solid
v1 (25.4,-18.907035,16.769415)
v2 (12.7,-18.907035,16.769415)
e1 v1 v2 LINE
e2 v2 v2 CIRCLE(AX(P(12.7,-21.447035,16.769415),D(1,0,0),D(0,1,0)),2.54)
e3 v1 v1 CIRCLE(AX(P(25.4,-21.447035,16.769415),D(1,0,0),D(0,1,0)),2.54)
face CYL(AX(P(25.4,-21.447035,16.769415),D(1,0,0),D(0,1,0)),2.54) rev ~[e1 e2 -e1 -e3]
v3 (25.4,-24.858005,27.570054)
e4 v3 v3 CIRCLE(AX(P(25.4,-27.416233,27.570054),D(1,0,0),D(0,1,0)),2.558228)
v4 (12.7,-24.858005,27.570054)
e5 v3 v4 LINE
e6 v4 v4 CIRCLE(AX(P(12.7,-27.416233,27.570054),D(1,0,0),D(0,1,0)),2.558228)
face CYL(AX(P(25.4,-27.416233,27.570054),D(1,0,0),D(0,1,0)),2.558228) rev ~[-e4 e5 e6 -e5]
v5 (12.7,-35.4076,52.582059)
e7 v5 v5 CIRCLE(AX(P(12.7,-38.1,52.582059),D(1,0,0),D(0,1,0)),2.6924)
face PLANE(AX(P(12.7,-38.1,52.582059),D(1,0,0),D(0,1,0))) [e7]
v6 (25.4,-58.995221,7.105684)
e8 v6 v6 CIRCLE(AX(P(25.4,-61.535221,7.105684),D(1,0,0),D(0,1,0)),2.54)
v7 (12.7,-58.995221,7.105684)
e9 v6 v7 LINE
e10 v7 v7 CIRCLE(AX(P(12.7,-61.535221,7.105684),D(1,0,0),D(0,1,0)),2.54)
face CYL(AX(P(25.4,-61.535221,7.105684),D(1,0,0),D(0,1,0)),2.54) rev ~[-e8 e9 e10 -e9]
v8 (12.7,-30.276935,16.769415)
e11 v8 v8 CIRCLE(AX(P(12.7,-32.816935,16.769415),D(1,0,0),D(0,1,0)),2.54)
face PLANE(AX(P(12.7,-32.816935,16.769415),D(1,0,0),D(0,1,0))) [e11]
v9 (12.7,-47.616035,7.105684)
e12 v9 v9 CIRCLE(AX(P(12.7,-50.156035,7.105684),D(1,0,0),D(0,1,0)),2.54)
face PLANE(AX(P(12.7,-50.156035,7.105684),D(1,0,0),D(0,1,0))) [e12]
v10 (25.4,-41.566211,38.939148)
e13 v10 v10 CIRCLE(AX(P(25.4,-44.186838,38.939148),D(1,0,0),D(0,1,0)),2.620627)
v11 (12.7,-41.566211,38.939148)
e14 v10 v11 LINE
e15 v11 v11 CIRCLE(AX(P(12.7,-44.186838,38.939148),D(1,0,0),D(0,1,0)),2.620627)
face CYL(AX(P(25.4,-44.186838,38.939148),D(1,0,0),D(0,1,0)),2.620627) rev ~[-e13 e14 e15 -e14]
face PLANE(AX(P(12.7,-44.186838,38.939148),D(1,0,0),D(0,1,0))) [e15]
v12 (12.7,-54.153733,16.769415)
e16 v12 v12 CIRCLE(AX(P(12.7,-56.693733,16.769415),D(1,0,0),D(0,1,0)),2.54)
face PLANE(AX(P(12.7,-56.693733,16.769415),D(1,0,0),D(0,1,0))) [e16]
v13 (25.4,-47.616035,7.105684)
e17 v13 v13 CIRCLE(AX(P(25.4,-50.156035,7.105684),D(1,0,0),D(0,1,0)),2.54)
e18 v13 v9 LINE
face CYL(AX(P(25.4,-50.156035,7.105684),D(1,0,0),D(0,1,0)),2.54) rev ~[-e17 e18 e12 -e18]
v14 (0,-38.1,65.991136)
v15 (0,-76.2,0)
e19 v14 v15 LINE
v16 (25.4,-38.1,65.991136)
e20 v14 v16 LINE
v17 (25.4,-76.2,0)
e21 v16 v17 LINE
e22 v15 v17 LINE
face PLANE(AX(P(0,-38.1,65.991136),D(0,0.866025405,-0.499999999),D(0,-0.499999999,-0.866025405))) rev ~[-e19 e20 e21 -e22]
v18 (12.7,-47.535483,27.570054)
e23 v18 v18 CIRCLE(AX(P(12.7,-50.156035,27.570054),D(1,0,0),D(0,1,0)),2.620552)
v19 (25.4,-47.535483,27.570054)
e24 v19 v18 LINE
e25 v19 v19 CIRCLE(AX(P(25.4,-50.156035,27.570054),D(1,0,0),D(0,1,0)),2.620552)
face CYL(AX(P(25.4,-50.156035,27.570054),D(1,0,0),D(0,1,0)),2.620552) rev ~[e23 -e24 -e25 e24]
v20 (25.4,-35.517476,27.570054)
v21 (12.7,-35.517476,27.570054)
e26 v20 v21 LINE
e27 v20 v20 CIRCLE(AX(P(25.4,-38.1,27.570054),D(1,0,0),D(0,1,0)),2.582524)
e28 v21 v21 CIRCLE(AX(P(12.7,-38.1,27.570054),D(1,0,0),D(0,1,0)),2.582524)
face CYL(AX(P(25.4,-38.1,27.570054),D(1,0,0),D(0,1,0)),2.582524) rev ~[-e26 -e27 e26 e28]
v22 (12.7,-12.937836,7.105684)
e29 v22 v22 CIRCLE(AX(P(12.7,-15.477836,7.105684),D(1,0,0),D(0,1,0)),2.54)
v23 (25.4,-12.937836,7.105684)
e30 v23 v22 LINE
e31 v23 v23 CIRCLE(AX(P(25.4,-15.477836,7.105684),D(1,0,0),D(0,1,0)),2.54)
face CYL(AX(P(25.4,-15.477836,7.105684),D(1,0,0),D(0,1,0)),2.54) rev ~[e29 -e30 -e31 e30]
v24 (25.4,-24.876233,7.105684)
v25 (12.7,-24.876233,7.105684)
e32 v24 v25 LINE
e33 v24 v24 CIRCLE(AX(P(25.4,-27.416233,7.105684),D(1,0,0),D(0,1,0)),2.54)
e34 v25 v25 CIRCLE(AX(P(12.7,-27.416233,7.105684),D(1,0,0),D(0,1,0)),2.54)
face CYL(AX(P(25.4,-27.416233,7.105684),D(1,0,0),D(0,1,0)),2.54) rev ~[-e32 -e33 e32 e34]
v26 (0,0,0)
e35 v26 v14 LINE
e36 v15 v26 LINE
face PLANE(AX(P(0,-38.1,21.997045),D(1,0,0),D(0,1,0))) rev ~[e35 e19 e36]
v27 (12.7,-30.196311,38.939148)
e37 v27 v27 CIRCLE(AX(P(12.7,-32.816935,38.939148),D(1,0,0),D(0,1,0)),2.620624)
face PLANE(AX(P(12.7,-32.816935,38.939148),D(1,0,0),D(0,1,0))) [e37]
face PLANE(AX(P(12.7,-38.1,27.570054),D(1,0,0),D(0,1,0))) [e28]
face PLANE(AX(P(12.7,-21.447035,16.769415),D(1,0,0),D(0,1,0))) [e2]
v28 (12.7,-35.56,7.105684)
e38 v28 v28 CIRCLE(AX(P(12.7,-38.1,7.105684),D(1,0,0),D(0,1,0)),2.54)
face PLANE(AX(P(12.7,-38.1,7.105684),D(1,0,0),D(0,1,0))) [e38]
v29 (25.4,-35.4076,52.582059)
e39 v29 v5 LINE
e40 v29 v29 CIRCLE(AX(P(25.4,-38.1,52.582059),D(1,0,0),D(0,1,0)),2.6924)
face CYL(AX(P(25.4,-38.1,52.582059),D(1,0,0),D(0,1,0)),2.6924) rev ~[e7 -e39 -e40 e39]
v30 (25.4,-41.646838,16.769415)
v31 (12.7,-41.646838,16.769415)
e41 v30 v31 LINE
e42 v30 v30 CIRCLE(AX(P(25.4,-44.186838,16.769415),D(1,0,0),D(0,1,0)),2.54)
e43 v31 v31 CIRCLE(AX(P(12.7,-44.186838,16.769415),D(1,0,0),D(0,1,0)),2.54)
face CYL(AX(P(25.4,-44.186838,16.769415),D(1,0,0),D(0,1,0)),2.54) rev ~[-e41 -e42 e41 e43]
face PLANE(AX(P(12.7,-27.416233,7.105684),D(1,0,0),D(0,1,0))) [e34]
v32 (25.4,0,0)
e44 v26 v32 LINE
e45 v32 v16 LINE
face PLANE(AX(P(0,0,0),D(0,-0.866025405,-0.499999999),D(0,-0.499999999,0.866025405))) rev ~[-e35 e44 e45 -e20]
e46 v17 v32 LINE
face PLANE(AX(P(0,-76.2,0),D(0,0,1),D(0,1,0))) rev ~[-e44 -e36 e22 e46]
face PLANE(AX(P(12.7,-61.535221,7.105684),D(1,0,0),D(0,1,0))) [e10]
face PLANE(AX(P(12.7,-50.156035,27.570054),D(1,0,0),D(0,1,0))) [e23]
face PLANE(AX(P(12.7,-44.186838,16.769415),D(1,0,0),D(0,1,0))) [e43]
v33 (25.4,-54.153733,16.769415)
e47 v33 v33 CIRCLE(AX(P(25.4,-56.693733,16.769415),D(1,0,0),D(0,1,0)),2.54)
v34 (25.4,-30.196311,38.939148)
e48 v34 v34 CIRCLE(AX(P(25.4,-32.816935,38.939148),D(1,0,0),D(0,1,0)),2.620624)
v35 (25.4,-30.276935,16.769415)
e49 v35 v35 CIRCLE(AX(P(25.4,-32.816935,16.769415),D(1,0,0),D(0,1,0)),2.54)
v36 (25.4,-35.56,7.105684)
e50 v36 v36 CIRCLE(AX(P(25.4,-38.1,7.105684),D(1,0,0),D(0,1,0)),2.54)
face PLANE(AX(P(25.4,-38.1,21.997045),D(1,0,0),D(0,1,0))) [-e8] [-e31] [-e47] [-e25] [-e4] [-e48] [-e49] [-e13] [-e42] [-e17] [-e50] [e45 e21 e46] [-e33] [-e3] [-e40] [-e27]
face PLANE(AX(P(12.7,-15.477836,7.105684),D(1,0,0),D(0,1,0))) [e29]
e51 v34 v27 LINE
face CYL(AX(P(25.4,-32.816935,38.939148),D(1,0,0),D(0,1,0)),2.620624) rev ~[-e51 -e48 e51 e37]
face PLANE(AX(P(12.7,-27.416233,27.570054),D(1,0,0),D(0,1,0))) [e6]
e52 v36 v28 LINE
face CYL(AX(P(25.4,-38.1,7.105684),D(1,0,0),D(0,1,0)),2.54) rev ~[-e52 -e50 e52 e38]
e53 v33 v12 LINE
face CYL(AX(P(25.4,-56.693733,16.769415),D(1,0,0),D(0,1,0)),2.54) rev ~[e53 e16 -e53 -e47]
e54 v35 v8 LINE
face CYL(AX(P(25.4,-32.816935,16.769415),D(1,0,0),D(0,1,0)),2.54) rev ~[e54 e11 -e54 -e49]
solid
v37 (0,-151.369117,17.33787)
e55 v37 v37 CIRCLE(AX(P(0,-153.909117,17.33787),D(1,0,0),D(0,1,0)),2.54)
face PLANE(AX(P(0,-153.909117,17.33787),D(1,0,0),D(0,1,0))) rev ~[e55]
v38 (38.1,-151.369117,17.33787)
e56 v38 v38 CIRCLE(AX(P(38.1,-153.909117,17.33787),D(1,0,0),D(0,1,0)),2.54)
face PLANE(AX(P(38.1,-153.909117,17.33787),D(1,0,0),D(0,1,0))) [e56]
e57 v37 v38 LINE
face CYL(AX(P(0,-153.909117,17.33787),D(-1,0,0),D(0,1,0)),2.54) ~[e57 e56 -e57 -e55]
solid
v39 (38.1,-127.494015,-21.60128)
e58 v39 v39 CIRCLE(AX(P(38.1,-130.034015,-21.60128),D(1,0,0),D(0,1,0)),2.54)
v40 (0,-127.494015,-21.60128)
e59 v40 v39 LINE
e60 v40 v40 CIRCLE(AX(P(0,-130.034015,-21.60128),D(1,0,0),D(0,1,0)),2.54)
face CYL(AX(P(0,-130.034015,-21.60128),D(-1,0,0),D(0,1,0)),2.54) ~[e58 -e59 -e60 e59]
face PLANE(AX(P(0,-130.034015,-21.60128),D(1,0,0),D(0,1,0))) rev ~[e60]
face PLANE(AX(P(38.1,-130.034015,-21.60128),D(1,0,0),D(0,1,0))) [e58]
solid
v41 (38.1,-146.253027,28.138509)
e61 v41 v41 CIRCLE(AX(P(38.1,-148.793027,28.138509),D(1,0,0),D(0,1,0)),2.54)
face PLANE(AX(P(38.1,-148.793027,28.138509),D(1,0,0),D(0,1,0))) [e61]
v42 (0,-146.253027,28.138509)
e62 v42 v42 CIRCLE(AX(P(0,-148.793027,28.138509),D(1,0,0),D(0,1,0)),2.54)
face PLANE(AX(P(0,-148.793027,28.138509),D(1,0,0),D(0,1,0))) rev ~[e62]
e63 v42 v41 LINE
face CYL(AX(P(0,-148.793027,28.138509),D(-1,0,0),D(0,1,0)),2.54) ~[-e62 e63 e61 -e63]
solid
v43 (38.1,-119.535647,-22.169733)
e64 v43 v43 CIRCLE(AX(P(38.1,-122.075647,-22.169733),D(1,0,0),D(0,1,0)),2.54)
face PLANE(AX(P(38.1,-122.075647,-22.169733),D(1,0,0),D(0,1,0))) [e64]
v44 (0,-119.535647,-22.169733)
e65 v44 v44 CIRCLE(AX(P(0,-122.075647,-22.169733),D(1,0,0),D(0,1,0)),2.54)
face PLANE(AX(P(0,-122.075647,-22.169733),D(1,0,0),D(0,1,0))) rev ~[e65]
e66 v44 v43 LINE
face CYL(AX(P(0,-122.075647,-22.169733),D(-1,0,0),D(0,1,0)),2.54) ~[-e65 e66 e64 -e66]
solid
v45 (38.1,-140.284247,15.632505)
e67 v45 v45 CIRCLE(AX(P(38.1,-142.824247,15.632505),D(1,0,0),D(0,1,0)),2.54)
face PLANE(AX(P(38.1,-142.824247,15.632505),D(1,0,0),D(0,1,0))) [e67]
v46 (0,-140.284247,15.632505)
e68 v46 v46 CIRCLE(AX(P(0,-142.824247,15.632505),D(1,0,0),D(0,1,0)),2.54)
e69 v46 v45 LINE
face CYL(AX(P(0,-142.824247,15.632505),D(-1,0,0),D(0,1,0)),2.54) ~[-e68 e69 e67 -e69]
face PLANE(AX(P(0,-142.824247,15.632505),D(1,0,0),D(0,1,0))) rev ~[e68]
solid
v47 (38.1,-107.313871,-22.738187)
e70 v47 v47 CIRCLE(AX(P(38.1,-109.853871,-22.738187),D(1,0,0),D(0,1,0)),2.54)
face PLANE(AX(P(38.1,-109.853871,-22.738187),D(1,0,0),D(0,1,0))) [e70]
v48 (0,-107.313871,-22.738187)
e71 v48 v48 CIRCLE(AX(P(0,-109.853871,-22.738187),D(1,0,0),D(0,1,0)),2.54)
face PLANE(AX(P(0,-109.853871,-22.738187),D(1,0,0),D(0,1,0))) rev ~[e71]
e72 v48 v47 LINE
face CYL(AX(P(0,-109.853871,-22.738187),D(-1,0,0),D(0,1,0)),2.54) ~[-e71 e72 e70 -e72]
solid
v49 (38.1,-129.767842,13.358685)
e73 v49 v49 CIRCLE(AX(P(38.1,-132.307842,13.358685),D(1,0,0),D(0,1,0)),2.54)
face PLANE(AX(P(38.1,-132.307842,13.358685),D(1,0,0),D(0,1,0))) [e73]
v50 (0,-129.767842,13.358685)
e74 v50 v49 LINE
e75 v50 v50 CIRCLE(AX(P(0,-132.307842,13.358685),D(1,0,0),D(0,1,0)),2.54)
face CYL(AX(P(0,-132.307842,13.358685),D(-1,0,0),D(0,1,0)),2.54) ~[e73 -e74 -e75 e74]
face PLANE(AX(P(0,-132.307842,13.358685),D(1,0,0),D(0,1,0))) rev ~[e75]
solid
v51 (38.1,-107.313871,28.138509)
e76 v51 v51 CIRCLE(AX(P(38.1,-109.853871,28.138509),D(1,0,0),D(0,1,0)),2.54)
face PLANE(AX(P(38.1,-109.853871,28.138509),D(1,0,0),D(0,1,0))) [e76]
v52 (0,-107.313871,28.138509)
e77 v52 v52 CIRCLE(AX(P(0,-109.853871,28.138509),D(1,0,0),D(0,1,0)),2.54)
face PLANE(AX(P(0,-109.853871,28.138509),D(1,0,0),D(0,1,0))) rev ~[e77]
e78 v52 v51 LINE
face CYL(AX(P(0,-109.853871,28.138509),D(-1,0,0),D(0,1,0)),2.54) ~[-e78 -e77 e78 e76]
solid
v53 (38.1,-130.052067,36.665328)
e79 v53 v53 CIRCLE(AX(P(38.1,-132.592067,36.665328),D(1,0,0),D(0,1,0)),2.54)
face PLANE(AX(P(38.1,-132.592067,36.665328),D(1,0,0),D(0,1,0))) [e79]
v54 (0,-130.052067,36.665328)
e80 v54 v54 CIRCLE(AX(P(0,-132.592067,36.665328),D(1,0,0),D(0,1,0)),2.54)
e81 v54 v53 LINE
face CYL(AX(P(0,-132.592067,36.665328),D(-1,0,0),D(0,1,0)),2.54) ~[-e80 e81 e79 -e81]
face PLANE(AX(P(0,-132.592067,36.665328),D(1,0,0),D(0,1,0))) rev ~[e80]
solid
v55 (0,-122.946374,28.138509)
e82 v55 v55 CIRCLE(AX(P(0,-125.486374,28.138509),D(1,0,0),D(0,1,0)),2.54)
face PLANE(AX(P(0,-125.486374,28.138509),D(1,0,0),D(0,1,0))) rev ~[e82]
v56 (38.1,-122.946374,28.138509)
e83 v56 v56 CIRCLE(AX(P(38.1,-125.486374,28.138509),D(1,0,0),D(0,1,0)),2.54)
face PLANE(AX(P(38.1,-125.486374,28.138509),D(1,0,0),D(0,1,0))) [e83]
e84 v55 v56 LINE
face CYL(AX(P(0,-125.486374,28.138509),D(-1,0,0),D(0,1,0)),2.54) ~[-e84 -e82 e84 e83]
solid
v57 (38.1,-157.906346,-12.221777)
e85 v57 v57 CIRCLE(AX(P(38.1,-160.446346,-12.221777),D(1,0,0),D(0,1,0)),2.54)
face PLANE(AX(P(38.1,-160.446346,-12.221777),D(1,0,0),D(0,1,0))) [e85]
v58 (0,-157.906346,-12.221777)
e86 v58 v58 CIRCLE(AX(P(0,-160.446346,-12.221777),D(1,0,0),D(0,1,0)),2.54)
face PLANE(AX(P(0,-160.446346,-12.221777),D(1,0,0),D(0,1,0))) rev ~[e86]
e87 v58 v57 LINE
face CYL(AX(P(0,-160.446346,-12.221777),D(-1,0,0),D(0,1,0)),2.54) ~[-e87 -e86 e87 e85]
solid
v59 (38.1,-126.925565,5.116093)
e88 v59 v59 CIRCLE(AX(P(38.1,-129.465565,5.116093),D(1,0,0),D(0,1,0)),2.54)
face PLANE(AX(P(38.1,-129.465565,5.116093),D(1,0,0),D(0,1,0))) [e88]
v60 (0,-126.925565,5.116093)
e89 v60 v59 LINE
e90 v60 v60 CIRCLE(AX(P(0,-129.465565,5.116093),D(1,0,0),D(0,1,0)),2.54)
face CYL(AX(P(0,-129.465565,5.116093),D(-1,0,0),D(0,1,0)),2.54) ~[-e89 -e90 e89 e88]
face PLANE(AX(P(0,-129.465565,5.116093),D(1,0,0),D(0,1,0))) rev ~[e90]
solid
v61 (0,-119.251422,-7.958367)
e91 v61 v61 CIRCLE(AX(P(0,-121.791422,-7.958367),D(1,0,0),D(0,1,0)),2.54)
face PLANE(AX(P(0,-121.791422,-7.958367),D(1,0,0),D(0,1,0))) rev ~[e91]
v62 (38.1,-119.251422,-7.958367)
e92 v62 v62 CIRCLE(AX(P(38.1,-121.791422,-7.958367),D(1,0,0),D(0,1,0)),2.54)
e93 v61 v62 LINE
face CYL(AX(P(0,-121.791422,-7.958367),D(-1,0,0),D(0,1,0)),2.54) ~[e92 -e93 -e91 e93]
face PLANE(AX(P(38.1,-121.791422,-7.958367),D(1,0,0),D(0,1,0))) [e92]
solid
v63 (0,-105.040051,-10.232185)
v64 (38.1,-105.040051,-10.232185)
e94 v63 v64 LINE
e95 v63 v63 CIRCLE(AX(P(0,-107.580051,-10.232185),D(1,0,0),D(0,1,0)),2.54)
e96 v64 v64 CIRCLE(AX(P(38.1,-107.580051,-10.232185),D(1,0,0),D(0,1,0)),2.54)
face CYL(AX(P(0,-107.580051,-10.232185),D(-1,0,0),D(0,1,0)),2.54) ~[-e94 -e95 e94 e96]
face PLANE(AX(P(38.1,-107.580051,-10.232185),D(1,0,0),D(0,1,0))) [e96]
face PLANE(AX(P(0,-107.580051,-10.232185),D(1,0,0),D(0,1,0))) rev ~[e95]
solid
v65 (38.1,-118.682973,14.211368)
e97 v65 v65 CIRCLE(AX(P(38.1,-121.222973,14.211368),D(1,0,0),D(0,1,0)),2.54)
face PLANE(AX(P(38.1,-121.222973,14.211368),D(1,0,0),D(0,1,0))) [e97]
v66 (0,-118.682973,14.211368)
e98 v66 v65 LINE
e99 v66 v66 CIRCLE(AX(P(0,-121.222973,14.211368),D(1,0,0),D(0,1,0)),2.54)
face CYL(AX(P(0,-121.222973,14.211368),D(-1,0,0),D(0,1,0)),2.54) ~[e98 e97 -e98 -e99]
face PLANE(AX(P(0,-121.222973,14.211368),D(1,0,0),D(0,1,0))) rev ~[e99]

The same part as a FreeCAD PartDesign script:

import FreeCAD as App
import Part
import Sketcher
from FreeCAD import Vector
Q = App.Units.Quantity


def add_polygon(sketch, points):
    """Adds a closed chain of lines whose ends are joined by coincident constraints."""
    first, n = sketch.GeometryCount, len(points)
    for a, b in zip(points, points[1:] + points[:1]):
        sketch.addGeometry(Part.LineSegment(App.Vector(*a, 0), App.Vector(*b, 0)), False)
    for i in range(n):
        sketch.addConstraint(Sketcher.Constraint("Coincident", first + i, 2, first + (i + 1) % n, 1))

doc = App.newDocument("Part")
body = doc.addObject("PartDesign::Body", "Body")

# Sketch on YZ plane
sketch1 = body.newObject("Sketcher::SketchObject", "Sketch")
sketch1.AttachmentSupport = (doc.getObject("YZ_Plane"), [""])
sketch1.MapMode = "FlatFace"
add_polygon(sketch1, [(-38, 66), (-76, 0), (0, 0)])  # lines 0-2
sketch1.addConstraint([
    Sketcher.Constraint("Horizontal", 1),
    Sketcher.Constraint("Coincident", 1, 2, -1, 1),
    Sketcher.Constraint("Equal", 0, 2),
    Sketcher.Constraint("DistanceX", 1, 1, 1, 2, Q("3 in")),
    Sketcher.Constraint("Distance", 0, Q("3 in")),
])
pad1 = body.newObject("PartDesign::Pad", "Pad")
pad1.Profile = sketch1
pad1.Length = Q("1 in")

# Sketch on YZ plane
sketch2 = body.newObject("Sketcher::SketchObject", "Sketch001")
sketch2.AttachmentSupport = (doc.getObject("YZ_Plane"), [""])
sketch2.MapMode = "FlatFace"
sketch2.AttachmentOffset = App.Placement(Vector(0, 0, 1 * 25.4), App.Rotation())
sketch2.addGeometry([
    Part.Circle(Vector(-61.5, 7.1, 0), Vector(0, 0, 1), 2.5),  # 0
    Part.Circle(Vector(-50.2, 7.1, 0), Vector(0, 0, 1), 2.5),  # 1
    Part.Circle(Vector(-38.1, 7.1, 0), Vector(0, 0, 1), 2.5),  # 2
    Part.Circle(Vector(-27.4, 7.1, 0), Vector(0, 0, 1), 2.5),  # 3
    Part.Circle(Vector(-15.5, 7.1, 0), Vector(0, 0, 1), 2.5),  # 4
    Part.Circle(Vector(-56.7, 16.8, 0), Vector(0, 0, 1), 2.5),  # 5
    Part.Circle(Vector(-44.2, 16.8, 0), Vector(0, 0, 1), 2.5),  # 6
    Part.Circle(Vector(-32.8, 16.8, 0), Vector(0, 0, 1), 2.5),  # 7
    Part.Circle(Vector(-21.4, 16.8, 0), Vector(0, 0, 1), 2.5),  # 8
    Part.Circle(Vector(-50.2, 27.6, 0), Vector(0, 0, 1), 2.6),  # 9
    Part.Circle(Vector(-38.1, 27.6, 0), Vector(0, 0, 1), 2.6),  # 10
    Part.Circle(Vector(-27.4, 27.6, 0), Vector(0, 0, 1), 2.6),  # 11
    Part.Circle(Vector(-44.2, 38.9, 0), Vector(0, 0, 1), 2.6),  # 12
    Part.Circle(Vector(-32.8, 38.9, 0), Vector(0, 0, 1), 2.6),  # 13
    Part.Circle(Vector(-38.1, 52.6, 0), Vector(0, 0, 1), 2.7),  # 14
], False)
sketch2.addConstraint([
    Sketcher.Constraint("Equal", 0, 1),
    Sketcher.Constraint("Equal", 1, 2),
    Sketcher.Constraint("Equal", 2, 3),
    Sketcher.Constraint("Equal", 3, 4),
    Sketcher.Constraint("Equal", 4, 5),
    Sketcher.Constraint("Equal", 5, 6),
    Sketcher.Constraint("Equal", 6, 7),
    Sketcher.Constraint("Equal", 7, 8),
    Sketcher.Constraint("Horizontal", 0, 3, 1, 3),
    Sketcher.Constraint("Horizontal", 1, 3, 2, 3),
    Sketcher.Constraint("Horizontal", 2, 3, 3, 3),
    Sketcher.Constraint("Horizontal", 3, 3, 4, 3),
    Sketcher.Constraint("Horizontal", 5, 3, 6, 3),
    Sketcher.Constraint("Horizontal", 6, 3, 7, 3),
    Sketcher.Constraint("Horizontal", 7, 3, 8, 3),
    Sketcher.Constraint("Horizontal", 9, 3, 10, 3),
    Sketcher.Constraint("Horizontal", 10, 3, 11, 3),
    Sketcher.Constraint("Horizontal", 12, 3, 13, 3),
    Sketcher.Constraint("Vertical", 1, 3, 9, 3),
    Sketcher.Constraint("Vertical", 2, 3, 10, 3),
    Sketcher.Constraint("Vertical", 3, 3, 11, 3),
    Sketcher.Constraint("Vertical", 6, 3, 12, 3),
    Sketcher.Constraint("Vertical", 7, 3, 13, 3),
    Sketcher.Constraint("Vertical", 10, 3, 14, 3),
    Sketcher.Constraint("Diameter", 0, Q("0.2 in")),
    Sketcher.Constraint("Diameter", 14, Q("0.212 in")),
    Sketcher.Constraint("DistanceX", 2, 3, -1, 1, Q("1.5 in")),
    Sketcher.Constraint("Diameter", 9, 5.241104),
    Sketcher.Constraint("Diameter", 10, 5.165048),
    Sketcher.Constraint("Diameter", 11, 5.116456),
    Sketcher.Constraint("Diameter", 12, 5.241254),
    Sketcher.Constraint("Diameter", 13, 5.241248),
    Sketcher.Constraint("DistanceX", 1, 3, 4, 3, 34.678199),
    Sketcher.Constraint("DistanceX", 5, 3, 3, 3, 29.2775),
    Sketcher.Constraint("DistanceX", 7, 3, 4, 3, 17.339099),
    Sketcher.Constraint("DistanceX", 8, 3, 4, 3, 5.969199),
    Sketcher.Constraint("DistanceX", 0, 3, -1, 1, 61.535221),
    Sketcher.Constraint("DistanceX", 6, 3, -1, 1, 44.186838),
    Sketcher.Constraint("DistanceY", -1, 1, 12, 3, 38.939148),
    Sketcher.Constraint("DistanceY", -1, 1, 14, 3, 52.582059),
    Sketcher.Constraint("DistanceX", 0, 3, 3, 3, 34.118988),
    Sketcher.Constraint("DistanceY", 0, 3, 5, 3, 9.663731),
    Sketcher.Constraint("DistanceY", 6, 3, 9, 3, 10.800639),
    Sketcher.Constraint("DistanceY", -1, 1, 0, 3, 7.105684),
    Sketcher.Constraint("DistanceX", 1, 3, -1, 1, 50.156035),
])
pocket1 = body.newObject("PartDesign::Pocket", "Pocket")
pocket1.Profile = sketch2
pocket1.Length = Q("0.5 in")
body2 = doc.addObject("PartDesign::Body", "Body001")
body2.AllowCompound = True

# Sketch on YZ plane
sketch3 = body2.newObject("Sketcher::SketchObject", "Sketch002")
sketch3.AttachmentSupport = (doc.getObject("YZ_Plane001"), [""])
sketch3.MapMode = "FlatFace"
sketch3.addGeometry([
    Part.Circle(Vector(-130, -21.6, 0), Vector(0, 0, 1), 2.5),  # 0
    Part.Circle(Vector(-122.1, -22.2, 0), Vector(0, 0, 1), 2.5),  # 1
    Part.Circle(Vector(-109.9, -22.7, 0), Vector(0, 0, 1), 2.5),  # 2
    Part.Circle(Vector(-121.8, -8, 0), Vector(0, 0, 1), 2.5),  # 3
    Part.Circle(Vector(-160.4, -12.2, 0), Vector(0, 0, 1), 2.5),  # 4
    Part.Circle(Vector(-107.6, -10.2, 0), Vector(0, 0, 1), 2.5),  # 5
    Part.Circle(Vector(-129.5, 5.1, 0), Vector(0, 0, 1), 2.5),  # 6
    Part.Circle(Vector(-153.9, 17.3, 0), Vector(0, 0, 1), 2.5),  # 7
    Part.Circle(Vector(-142.8, 15.6, 0), Vector(0, 0, 1), 2.5),  # 8
    Part.Circle(Vector(-132.3, 13.4, 0), Vector(0, 0, 1), 2.5),  # 9
    Part.Circle(Vector(-121.2, 14.2, 0), Vector(0, 0, 1), 2.5),  # 10
    Part.Circle(Vector(-148.8, 28.1, 0), Vector(0, 0, 1), 2.5),  # 11
    Part.Circle(Vector(-132.6, 36.7, 0), Vector(0, 0, 1), 2.5),  # 12
    Part.Circle(Vector(-125.5, 28.1, 0), Vector(0, 0, 1), 2.5),  # 13
    Part.Circle(Vector(-109.9, 28.1, 0), Vector(0, 0, 1), 2.5),  # 14
], False)
sketch3.addConstraint([
    Sketcher.Constraint("Equal", 0, 1),
    Sketcher.Constraint("Equal", 1, 2),
    Sketcher.Constraint("Equal", 2, 3),
    Sketcher.Constraint("Equal", 3, 4),
    Sketcher.Constraint("Equal", 4, 5),
    Sketcher.Constraint("Equal", 5, 6),
    Sketcher.Constraint("Equal", 6, 7),
    Sketcher.Constraint("Equal", 7, 8),
    Sketcher.Constraint("Equal", 8, 9),
    Sketcher.Constraint("Equal", 9, 10),
    Sketcher.Constraint("Equal", 10, 11),
    Sketcher.Constraint("Equal", 11, 12),
    Sketcher.Constraint("Equal", 12, 13),
    Sketcher.Constraint("Equal", 13, 14),
    Sketcher.Constraint("Horizontal", 11, 3, 13, 3),
    Sketcher.Constraint("Horizontal", 13, 3, 14, 3),
    Sketcher.Constraint("Vertical", 2, 3, 14, 3),
    Sketcher.Constraint("Diameter", 0, Q("0.2 in")),
    Sketcher.Constraint("DistanceX", 4, 3, 1, 3, 38.370699),
    Sketcher.Constraint("DistanceX", 7, 3, 0, 3, 23.875102),
    Sketcher.Constraint("DistanceX", 4, 3, 8, 3, 17.622099),
    Sketcher.Constraint("DistanceX", 13, 3, 10, 3, 4.263401),
    Sketcher.Constraint("DistanceX", 10, 3, 14, 3, 11.369102),
    Sketcher.Constraint("DistanceY", 0, 3, -1, 1, 21.60128),
    Sketcher.Constraint("DistanceX", 2, 3, -1, 1, 109.853871),
    Sketcher.Constraint("DistanceX", 3, 3, -1, 1, 121.791422),
    Sketcher.Constraint("DistanceX", 5, 3, -1, 1, 107.580051),
    Sketcher.Constraint("DistanceY", -1, 1, 7, 3, 17.33787),
    Sketcher.Constraint("DistanceX", 9, 3, -1, 1, 132.307842),
    Sketcher.Constraint("DistanceY", -1, 1, 11, 3, 28.138509),
    Sketcher.Constraint("DistanceY", -1, 1, 12, 3, 36.665328),
    Sketcher.Constraint("DistanceX", 0, 3, 1, 3, 7.958368),
    Sketcher.Constraint("DistanceY", 2, 3, 3, 3, 14.77982),
    Sketcher.Constraint("DistanceY", 4, 3, 3, 3, 4.26341),
    Sketcher.Constraint("DistanceY", 1, 3, 5, 3, 11.937548),
    Sketcher.Constraint("DistanceY", 3, 3, 6, 3, 13.07446),
    Sketcher.Constraint("DistanceX", 0, 3, 6, 3, 0.56845),
    Sketcher.Constraint("DistanceY", 6, 3, 8, 3, 10.516412),
    Sketcher.Constraint("DistanceY", 6, 3, 9, 3, 8.242592),
    Sketcher.Constraint("DistanceY", 5, 3, 9, 3, 23.59087),
    Sketcher.Constraint("DistanceX", 7, 3, 11, 3, 5.11609),
    Sketcher.Constraint("DistanceY", 10, 3, 11, 3, 13.927141),
    Sketcher.Constraint("DistanceX", 11, 3, 12, 3, 16.20096),
    Sketcher.Constraint("DistanceX", 0, 3, -1, 1, 130.034015),
    Sketcher.Constraint("DistanceY", 1, 3, -1, 1, 22.169733),
])
pad2 = body2.newObject("PartDesign::Pad", "Pad001")
pad2.Profile = sketch3
pad2.Length = Q("1.5 in")

doc.recompute()
